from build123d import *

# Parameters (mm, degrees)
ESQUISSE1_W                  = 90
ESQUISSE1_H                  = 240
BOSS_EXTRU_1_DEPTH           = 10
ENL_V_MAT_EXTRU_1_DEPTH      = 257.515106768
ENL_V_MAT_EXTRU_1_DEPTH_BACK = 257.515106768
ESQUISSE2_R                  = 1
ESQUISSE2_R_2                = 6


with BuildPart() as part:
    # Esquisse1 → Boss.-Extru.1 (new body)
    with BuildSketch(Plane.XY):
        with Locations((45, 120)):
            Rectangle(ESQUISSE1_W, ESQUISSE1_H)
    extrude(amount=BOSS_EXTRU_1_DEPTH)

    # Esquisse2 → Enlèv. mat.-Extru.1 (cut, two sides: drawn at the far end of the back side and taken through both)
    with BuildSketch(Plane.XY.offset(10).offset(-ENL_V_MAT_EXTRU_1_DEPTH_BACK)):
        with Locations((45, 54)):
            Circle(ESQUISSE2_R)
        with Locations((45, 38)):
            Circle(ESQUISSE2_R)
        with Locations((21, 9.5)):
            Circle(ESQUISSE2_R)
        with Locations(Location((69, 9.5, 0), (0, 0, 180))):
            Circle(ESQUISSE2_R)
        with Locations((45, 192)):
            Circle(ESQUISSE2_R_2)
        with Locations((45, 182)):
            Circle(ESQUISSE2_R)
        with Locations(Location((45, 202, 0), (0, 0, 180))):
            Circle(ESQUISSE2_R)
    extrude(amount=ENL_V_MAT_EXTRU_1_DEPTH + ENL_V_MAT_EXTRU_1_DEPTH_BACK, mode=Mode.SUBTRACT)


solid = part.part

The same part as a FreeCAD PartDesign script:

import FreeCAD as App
import Part
import Sketcher
from FreeCAD import Vector
Q = App.Units.Quantity


def add_polygon(sketch, points):
    """Adds a closed chain of lines whose ends are joined by coincident constraints."""
    first, n = sketch.GeometryCount, len(points)
    for a, b in zip(points, points[1:] + points[:1]):
        sketch.addGeometry(Part.LineSegment(App.Vector(*a, 0), App.Vector(*b, 0)), False)
    for i in range(n):
        sketch.addConstraint(Sketcher.Constraint("Coincident", first + i, 2, first + (i + 1) % n, 1))

doc = App.newDocument("Part")
body = doc.addObject("PartDesign::Body", "Body")

sketch1 = body.newObject("Sketcher::SketchObject", "Sketch")
sketch1.AttachmentSupport = (doc.getObject("XY_Plane"), [""])
sketch1.MapMode = "FlatFace"
add_polygon(sketch1, [(0, 240), (0, 0), (90, 0), (90, 240)])
sketch1.addConstraint([
    Sketcher.Constraint("Vertical", 0),
    Sketcher.Constraint("Horizontal", 1),
    Sketcher.Constraint("Vertical", 2),
    Sketcher.Constraint("Horizontal", 3),
    Sketcher.Constraint("Coincident", 0, 2, -1, 1),
    Sketcher.Constraint("DistanceX", 1, 1, 1, 2, Q("90 mm")),
    Sketcher.Constraint("DistanceY", 0, 2, 0, 1, Q("240 mm")),
])
pad1 = body.newObject("PartDesign::Pad", "Pad")
pad1.Profile = sketch1
pad1.Length = 10

sketch2 = body.newObject("Sketcher::SketchObject", "Sketch001")
sketch2.AttachmentSupport = (doc.getObject("XY_Plane"), [""])
sketch2.MapMode = "FlatFace"
sketch2.AttachmentOffset = App.Placement(Vector(0, 0, 10), App.Rotation())
sketch2.addGeometry([
    Part.Circle(Vector(45, 54, 0), Vector(0, 0, 1), 1),
    Part.Circle(Vector(45, 38, 0), Vector(0, 0, 1), 1),
    Part.Circle(Vector(21, 9.5, 0), Vector(0, 0, 1), 1),
    Part.Circle(Vector(69, 9.5, 0), Vector(0, 0, 1), 1),
    Part.Circle(Vector(45, 192, 0), Vector(0, 0, 1), 6),
    Part.Circle(Vector(45, 182, 0), Vector(0, 0, 1), 1),
    Part.Circle(Vector(45, 202, 0), Vector(0, 0, 1), 1),
], False)
sketch2.addConstraint([
    Sketcher.Constraint("Equal", 0, 1),
    Sketcher.Constraint("Equal", 1, 2),
    Sketcher.Constraint("Equal", 2, 3),
    Sketcher.Constraint("Equal", 3, 5),
    Sketcher.Constraint("Equal", 5, 6),
    Sketcher.Constraint("Horizontal", 2, 3, 3, 3),
    Sketcher.Constraint("Vertical", 0, 3, 1, 3),
    Sketcher.Constraint("Vertical", 1, 3, 4, 3),
    Sketcher.Constraint("Vertical", 4, 3, 5, 3),
    Sketcher.Constraint("Vertical", 5, 3, 6, 3),
    Sketcher.Constraint("Diameter", 0, Q("2 mm")),
    Sketcher.Constraint("Diameter", 4, Q("12 mm")),
    Sketcher.Constraint("DistanceX", -1, 1, 0, 3, Q("45 mm")),
    Sketcher.Constraint("DistanceY", -1, 1, 0, 3, Q("54 mm")),
    Sketcher.Constraint("DistanceY", -1, 1, 1, 3, Q("38 mm")),
    Sketcher.Constraint("DistanceX", -1, 1, 2, 3, Q("21 mm")),
    Sketcher.Constraint("DistanceX", -1, 1, 3, 3, Q("69 mm")),
    Sketcher.Constraint("DistanceY", -1, 1, 4, 3, Q("192 mm")),
    Sketcher.Constraint("DistanceY", -1, 1, 5, 3, Q("182 mm")),
    Sketcher.Constraint("DistanceY", -1, 1, 6, 3, Q("202 mm")),
    Sketcher.Constraint("DistanceY", -1, 1, 2, 3, Q("9.5 mm")),
])
pocket1 = body.newObject("PartDesign::Pocket", "Pocket")
pocket1.Profile = sketch2
pocket1.Type = "ThroughAll"
pocket1.Midplane = True

doc.recompute()
